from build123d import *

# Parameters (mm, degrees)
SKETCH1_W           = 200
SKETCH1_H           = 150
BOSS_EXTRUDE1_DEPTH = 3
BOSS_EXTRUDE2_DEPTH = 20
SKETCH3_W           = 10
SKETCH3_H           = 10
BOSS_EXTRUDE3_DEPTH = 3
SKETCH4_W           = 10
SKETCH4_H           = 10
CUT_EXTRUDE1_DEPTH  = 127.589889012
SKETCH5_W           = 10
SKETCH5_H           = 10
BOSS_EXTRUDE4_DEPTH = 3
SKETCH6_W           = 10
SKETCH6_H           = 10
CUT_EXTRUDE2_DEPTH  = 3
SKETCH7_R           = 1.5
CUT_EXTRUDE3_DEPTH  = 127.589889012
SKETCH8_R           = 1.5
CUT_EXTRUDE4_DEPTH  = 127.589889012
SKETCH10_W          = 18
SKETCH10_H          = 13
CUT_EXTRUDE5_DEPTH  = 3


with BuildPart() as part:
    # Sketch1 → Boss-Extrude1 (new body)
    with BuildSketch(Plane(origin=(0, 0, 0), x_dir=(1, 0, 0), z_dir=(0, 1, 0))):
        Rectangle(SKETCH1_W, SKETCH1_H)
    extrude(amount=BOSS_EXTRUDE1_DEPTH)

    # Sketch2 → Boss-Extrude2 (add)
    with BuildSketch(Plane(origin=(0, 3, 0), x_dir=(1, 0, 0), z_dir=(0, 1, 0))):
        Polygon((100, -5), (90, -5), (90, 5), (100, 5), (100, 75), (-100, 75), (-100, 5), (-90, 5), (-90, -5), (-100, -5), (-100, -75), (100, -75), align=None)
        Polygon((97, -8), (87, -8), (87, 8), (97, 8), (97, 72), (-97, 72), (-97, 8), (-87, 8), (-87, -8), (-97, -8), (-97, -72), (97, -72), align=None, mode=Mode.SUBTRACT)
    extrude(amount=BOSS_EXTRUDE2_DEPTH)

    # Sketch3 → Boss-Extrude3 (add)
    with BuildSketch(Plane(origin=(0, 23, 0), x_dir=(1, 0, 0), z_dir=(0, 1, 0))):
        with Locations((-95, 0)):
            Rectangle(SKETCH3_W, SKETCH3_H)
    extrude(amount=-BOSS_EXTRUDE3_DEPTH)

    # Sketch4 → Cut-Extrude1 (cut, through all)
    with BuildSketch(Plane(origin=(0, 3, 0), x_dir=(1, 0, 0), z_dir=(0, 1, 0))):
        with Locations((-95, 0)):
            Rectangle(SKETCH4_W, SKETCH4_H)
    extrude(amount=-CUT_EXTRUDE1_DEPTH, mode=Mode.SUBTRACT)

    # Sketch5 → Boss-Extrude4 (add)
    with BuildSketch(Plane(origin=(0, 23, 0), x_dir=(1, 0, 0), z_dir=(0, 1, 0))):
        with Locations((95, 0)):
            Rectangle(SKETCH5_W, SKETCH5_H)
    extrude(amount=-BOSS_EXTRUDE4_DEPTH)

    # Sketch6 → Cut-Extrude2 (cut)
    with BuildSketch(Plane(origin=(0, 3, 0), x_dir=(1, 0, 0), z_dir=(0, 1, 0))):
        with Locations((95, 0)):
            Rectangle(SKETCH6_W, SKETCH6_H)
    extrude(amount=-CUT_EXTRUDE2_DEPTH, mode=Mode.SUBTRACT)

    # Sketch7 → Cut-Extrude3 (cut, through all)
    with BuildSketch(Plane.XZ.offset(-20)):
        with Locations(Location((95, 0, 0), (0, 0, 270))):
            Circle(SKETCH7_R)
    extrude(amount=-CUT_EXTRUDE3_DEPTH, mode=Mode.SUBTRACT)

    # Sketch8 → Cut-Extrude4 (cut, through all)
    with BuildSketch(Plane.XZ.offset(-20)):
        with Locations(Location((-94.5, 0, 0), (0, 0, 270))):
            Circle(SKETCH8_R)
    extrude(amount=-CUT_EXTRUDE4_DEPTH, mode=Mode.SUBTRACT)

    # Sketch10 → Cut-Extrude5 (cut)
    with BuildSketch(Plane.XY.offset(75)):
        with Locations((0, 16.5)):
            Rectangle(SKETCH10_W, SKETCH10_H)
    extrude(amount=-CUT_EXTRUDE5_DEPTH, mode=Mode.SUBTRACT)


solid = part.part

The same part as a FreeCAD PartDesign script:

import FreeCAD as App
import Part
import Sketcher
Q = App.Units.Quantity


def add_polygon(sketch, points):
    """Adds a closed chain of lines whose ends are joined by coincident constraints."""
    first, n = sketch.GeometryCount, len(points)
    for a, b in zip(points, points[1:] + points[:1]):
        sketch.addGeometry(Part.LineSegment(App.Vector(*a, 0), App.Vector(*b, 0)), False)
    for i in range(n):
        sketch.addConstraint(Sketcher.Constraint("Coincident", first + i, 2, first + (i + 1) % n, 1))

doc = App.newDocument("Part")
body = doc.addObject("PartDesign::Body", "Body")

# Sketch on XZ plane
sketch1 = body.newObject("Sketcher::SketchObject", "Sketch")
sketch1.AttachmentSupport = (doc.getObject("XZ_Plane"), [""])
sketch1.MapMode = "FlatFace"
add_polygon(sketch1, [(-100, -75), (-100, 75), (100, 75), (100, -75)])  # lines 0-3
sketch1.addConstraint([
    Sketcher.Constraint("Vertical", 0),
    Sketcher.Constraint("Horizontal", 1),
    Sketcher.Constraint("Vertical", 2),
    Sketcher.Constraint("Horizontal", 3),
    Sketcher.Constraint("Symmetric", 0, 2, 2, 2, -1, 1),
    Sketcher.Constraint("DistanceX", 1, 1, 1, 2, Q("200 mm")),
    Sketcher.Constraint("DistanceY", 0, 1, 0, 2, Q("150 mm")),
])
pad1 = body.newObject("PartDesign::Pad", "Pad")
pad1.Profile = sketch1
pad1.Length = 3
pad1.Reversed = True

# Sketch on XZ plane
sketch2 = body.newObject("Sketcher::SketchObject", "Sketch001")
sketch2.AttachmentSupport = (doc.getObject("XZ_Plane"), [""])
sketch2.MapMode = "FlatFace"
sketch2.AttachmentOffset = App.Placement(App.Vector(0, 0, -3), App.Rotation())
add_polygon(sketch2, [(100, 5), (90, 5), (90, -5), (100, -5), (100, -75), (-100, -75), (-100, -5), (-90, -5), (-90, 5), (-100, 5), (-100, 75), (100, 75)])  # lines 0-11
add_polygon(sketch2, [(87, 8), (97, 8), (97, 72), (-97, 72), (-97, 8), (-87, 8), (-87, -8), (-97, -8), (-97, -72), (97, -72), (97, -8), (87, -8)])  # lines 12-23
sketch2.addConstraint([
    Sketcher.Constraint("Horizontal", 0),
    Sketcher.Constraint("Vertical", 1),
    Sketcher.Constraint("Horizontal", 2),
    Sketcher.Constraint("Vertical", 3),
    Sketcher.Constraint("Horizontal", 4),
    Sketcher.Constraint("Vertical", 5),
    Sketcher.Constraint("Horizontal", 6),
    Sketcher.Constraint("Vertical", 7),
    Sketcher.Constraint("Horizontal", 8),
    Sketcher.Constraint("Vertical", 9),
    Sketcher.Constraint("Horizontal", 10),
    Sketcher.Constraint("Vertical", 11),
    Sketcher.Constraint("Horizontal", 12),
    Sketcher.Constraint("Vertical", 13),
    Sketcher.Constraint("Horizontal", 14),
    Sketcher.Constraint("Vertical", 15),
    Sketcher.Constraint("Horizontal", 16),
    Sketcher.Constraint("Vertical", 17),
    Sketcher.Constraint("Horizontal", 18),
    Sketcher.Constraint("Vertical", 19),
    Sketcher.Constraint("Horizontal", 20),
    Sketcher.Constraint("Vertical", 21),
    Sketcher.Constraint("Horizontal", 22),
    Sketcher.Constraint("Vertical", 23),
    Sketcher.Constraint("Symmetric", 0, 2, 6, 2, -1, 1),
    Sketcher.Constraint("Symmetric", 2, 2, 8, 2, -1, 1),
    Sketcher.Constraint("Symmetric", 4, 2, 10, 2, -1, 1),
    Sketcher.Constraint("Symmetric", 12, 2, 18, 2, -1, 1),
    Sketcher.Constraint("Symmetric", 14, 2, 20, 2, -1, 1),
    Sketcher.Constraint("Symmetric", 16, 2, 22, 2, -1, 1),
    Sketcher.Constraint("Symmetric", 2, 2, 5, 2, -2),
    Sketcher.Constraint("Symmetric", 12, 2, 15, 2, -2),
    Sketcher.Constraint("Equal", 8, 12),
    Sketcher.Constraint("Equal", 22, 1),
    Sketcher.Constraint("DistanceX", 0, 2, 0, 1, Q("10 mm")),
    Sketcher.Constraint("DistanceX", 4, 2, 4, 1, Q("200 mm")),
    Sketcher.Constraint("DistanceX", 14, 2, 14, 1, Q("194 mm")),
    Sketcher.Constraint("DistanceY", 3, 2, 3, 1, Q("70 mm")),
    Sketcher.Constraint("DistanceY", 13, 1, 13, 2, Q("64 mm")),
    Sketcher.Constraint("DistanceY", 17, 2, 17, 1, Q("16 mm")),
])
pad2 = body.newObject("PartDesign::Pad", "Pad001")
pad2.Profile = sketch2
pad2.Length = 20
pad2.Reversed = True

# Sketch on XZ plane
sketch3 = body.newObject("Sketcher::SketchObject", "Sketch002")
sketch3.AttachmentSupport = (doc.getObject("XZ_Plane"), [""])
sketch3.MapMode = "FlatFace"
sketch3.AttachmentOffset = App.Placement(App.Vector(0, 0, -23), App.Rotation())
add_polygon(sketch3, [(-100, -5), (-100, 5), (-90, 5), (-90, -5)])  # lines 0-3
sketch3.addConstraint([
    Sketcher.Constraint("Vertical", 0),
    Sketcher.Constraint("Horizontal", 1),
    Sketcher.Constraint("Vertical", 2),
    Sketcher.Constraint("Horizontal", 3),
    Sketcher.Constraint("Equal", 3, 0),
    Sketcher.Constraint("DistanceX", 1, 1, 1, 2, Q("10 mm")),
    Sketcher.Constraint("DistanceX", 0, 2, -1, 1, Q("100 mm")),
    Sketcher.Constraint("DistanceY", -1, 1, 0, 2, Q("5 mm")),
])
pad3 = body.newObject("PartDesign::Pad", "Pad002")
pad3.Profile = sketch3
pad3.Length = 3

# Sketch on XZ plane
sketch4 = body.newObject("Sketcher::SketchObject", "Sketch003")
sketch4.AttachmentSupport = (doc.getObject("XZ_Plane"), [""])
sketch4.MapMode = "FlatFace"
sketch4.AttachmentOffset = App.Placement(App.Vector(0, 0, -3), App.Rotation())
add_polygon(sketch4, [(-100, -5), (-100, 5), (-90, 5), (-90, -5)])  # lines 0-3
sketch4.addConstraint([
    Sketcher.Constraint("Vertical", 0),
    Sketcher.Constraint("Horizontal", 1),
    Sketcher.Constraint("Vertical", 2),
    Sketcher.Constraint("Horizontal", 3),
    Sketcher.Constraint("Equal", 3, 0),
    Sketcher.Constraint("DistanceX", 1, 1, 1, 2, Q("10 mm")),
    Sketcher.Constraint("DistanceX", 0, 2, -1, 1, Q("100 mm")),
    Sketcher.Constraint("DistanceY", -1, 1, 0, 2, Q("5 mm")),
])
pocket1 = body.newObject("PartDesign::Pocket", "Pocket")
pocket1.Profile = sketch4
pocket1.Type = "ThroughAll"
pocket1.Reversed = True

# Sketch on XZ plane
sketch5 = body.newObject("Sketcher::SketchObject", "Sketch004")
sketch5.AttachmentSupport = (doc.getObject("XZ_Plane"), [""])
sketch5.MapMode = "FlatFace"
sketch5.AttachmentOffset = App.Placement(App.Vector(0, 0, -23), App.Rotation())
add_polygon(sketch5, [(90, -5), (90, 5), (100, 5), (100, -5)])  # lines 0-3
sketch5.addConstraint([
    Sketcher.Constraint("Vertical", 0),
    Sketcher.Constraint("Horizontal", 1),
    Sketcher.Constraint("Vertical", 2),
    Sketcher.Constraint("Horizontal", 3),
    Sketcher.Constraint("Equal", 3, 0),
    Sketcher.Constraint("DistanceX", 1, 1, 1, 2, Q("10 mm")),
    Sketcher.Constraint("DistanceX", -1, 1, 0, 2, Q("90 mm")),
    Sketcher.Constraint("DistanceY", -1, 1, 0, 2, Q("5 mm")),
])
pad4 = body.newObject("PartDesign::Pad", "Pad003")
pad4.Profile = sketch5
pad4.Length = 3

# Sketch on XZ plane
sketch6 = body.newObject("Sketcher::SketchObject", "Sketch005")
sketch6.AttachmentSupport = (doc.getObject("XZ_Plane"), [""])
sketch6.MapMode = "FlatFace"
sketch6.AttachmentOffset = App.Placement(App.Vector(0, 0, -3), App.Rotation())
add_polygon(sketch6, [(90, -5), (90, 5), (100, 5), (100, -5)])  # lines 0-3
sketch6.addConstraint([
    Sketcher.Constraint("Vertical", 0),
    Sketcher.Constraint("Horizontal", 1),
    Sketcher.Constraint("Vertical", 2),
    Sketcher.Constraint("Horizontal", 3),
    Sketcher.Constraint("Equal", 3, 0),
    Sketcher.Constraint("DistanceX", 1, 1, 1, 2, Q("10 mm")),
    Sketcher.Constraint("DistanceX", -1, 1, 0, 2, Q("90 mm")),
    Sketcher.Constraint("DistanceY", -1, 1, 0, 2, Q("5 mm")),
])
pocket2 = body.newObject("PartDesign::Pocket", "Pocket001")
pocket2.Profile = sketch6
pocket2.Length = 3
pocket2.Reversed = True

# Sketch on XZ plane
sketch7 = body.newObject("Sketcher::SketchObject", "Sketch006")
sketch7.AttachmentSupport = (doc.getObject("XZ_Plane"), [""])
sketch7.MapMode = "FlatFace"
sketch7.AttachmentOffset = App.Placement(App.Vector(0, 0, -20), App.Rotation())
sketch7.addGeometry(Part.Circle(App.Vector(95, 0, 0), App.Vector(0, 0, 1), 1.5), False)
sketch7.addConstraint([
    Sketcher.Constraint("PointOnObject", 0, 3, -1),
    Sketcher.Constraint("Diameter", 0, Q("3 mm")),
    Sketcher.Constraint("DistanceX", -1, 1, 0, 3, Q("95 mm")),
])
pocket3 = body.newObject("PartDesign::Pocket", "Pocket002")
pocket3.Profile = sketch7
pocket3.Type = "ThroughAll"

# Sketch on XZ plane
sketch8 = body.newObject("Sketcher::SketchObject", "Sketch007")
sketch8.AttachmentSupport = (doc.getObject("XZ_Plane"), [""])
sketch8.MapMode = "FlatFace"
sketch8.AttachmentOffset = App.Placement(App.Vector(0, 0, -20), App.Rotation())
sketch8.addGeometry(Part.Circle(App.Vector(-94.5, 0, 0), App.Vector(0, 0, 1), 1.5), False)
sketch8.addConstraint([
    Sketcher.Constraint("PointOnObject", 0, 3, -1),
    Sketcher.Constraint("Diameter", 0, Q("3 mm")),
    Sketcher.Constraint("DistanceX", 0, 3, -1, 1, Q("94.5 mm")),
])
pocket4 = body.newObject("PartDesign::Pocket", "Pocket003")
pocket4.Profile = sketch8
pocket4.Type = "ThroughAll"

# Sketch on XY plane
sketch9 = body.newObject("Sketcher::SketchObject", "Sketch008")
sketch9.AttachmentSupport = (doc.getObject("XY_Plane"), [""])
sketch9.MapMode = "FlatFace"
sketch9.AttachmentOffset = App.Placement(App.Vector(0, 0, 75), App.Rotation())
add_polygon(sketch9, [(-9, 23), (-9, 10), (9, 10), (9, 23)])  # lines 0-3
sketch9.addConstraint([
    Sketcher.Constraint("Vertical", 0),
    Sketcher.Constraint("Horizontal", 1),
    Sketcher.Constraint("Vertical", 2),
    Sketcher.Constraint("Horizontal", 3),
    Sketcher.Constraint("DistanceX", 1, 1, 1, 2, Q("18 mm")),
    Sketcher.Constraint("DistanceY", 0, 2, 0, 1, Q("13 mm")),
    Sketcher.Constraint("DistanceX", 0, 2, -1, 1, Q("9 mm")),
    Sketcher.Constraint("DistanceY", -1, 1, 0, 2, Q("10 mm")),
])
pocket5 = body.newObject("PartDesign::Pocket", "Pocket004")
pocket5.Profile = sketch9
pocket5.Length = 3

doc.recompute()
